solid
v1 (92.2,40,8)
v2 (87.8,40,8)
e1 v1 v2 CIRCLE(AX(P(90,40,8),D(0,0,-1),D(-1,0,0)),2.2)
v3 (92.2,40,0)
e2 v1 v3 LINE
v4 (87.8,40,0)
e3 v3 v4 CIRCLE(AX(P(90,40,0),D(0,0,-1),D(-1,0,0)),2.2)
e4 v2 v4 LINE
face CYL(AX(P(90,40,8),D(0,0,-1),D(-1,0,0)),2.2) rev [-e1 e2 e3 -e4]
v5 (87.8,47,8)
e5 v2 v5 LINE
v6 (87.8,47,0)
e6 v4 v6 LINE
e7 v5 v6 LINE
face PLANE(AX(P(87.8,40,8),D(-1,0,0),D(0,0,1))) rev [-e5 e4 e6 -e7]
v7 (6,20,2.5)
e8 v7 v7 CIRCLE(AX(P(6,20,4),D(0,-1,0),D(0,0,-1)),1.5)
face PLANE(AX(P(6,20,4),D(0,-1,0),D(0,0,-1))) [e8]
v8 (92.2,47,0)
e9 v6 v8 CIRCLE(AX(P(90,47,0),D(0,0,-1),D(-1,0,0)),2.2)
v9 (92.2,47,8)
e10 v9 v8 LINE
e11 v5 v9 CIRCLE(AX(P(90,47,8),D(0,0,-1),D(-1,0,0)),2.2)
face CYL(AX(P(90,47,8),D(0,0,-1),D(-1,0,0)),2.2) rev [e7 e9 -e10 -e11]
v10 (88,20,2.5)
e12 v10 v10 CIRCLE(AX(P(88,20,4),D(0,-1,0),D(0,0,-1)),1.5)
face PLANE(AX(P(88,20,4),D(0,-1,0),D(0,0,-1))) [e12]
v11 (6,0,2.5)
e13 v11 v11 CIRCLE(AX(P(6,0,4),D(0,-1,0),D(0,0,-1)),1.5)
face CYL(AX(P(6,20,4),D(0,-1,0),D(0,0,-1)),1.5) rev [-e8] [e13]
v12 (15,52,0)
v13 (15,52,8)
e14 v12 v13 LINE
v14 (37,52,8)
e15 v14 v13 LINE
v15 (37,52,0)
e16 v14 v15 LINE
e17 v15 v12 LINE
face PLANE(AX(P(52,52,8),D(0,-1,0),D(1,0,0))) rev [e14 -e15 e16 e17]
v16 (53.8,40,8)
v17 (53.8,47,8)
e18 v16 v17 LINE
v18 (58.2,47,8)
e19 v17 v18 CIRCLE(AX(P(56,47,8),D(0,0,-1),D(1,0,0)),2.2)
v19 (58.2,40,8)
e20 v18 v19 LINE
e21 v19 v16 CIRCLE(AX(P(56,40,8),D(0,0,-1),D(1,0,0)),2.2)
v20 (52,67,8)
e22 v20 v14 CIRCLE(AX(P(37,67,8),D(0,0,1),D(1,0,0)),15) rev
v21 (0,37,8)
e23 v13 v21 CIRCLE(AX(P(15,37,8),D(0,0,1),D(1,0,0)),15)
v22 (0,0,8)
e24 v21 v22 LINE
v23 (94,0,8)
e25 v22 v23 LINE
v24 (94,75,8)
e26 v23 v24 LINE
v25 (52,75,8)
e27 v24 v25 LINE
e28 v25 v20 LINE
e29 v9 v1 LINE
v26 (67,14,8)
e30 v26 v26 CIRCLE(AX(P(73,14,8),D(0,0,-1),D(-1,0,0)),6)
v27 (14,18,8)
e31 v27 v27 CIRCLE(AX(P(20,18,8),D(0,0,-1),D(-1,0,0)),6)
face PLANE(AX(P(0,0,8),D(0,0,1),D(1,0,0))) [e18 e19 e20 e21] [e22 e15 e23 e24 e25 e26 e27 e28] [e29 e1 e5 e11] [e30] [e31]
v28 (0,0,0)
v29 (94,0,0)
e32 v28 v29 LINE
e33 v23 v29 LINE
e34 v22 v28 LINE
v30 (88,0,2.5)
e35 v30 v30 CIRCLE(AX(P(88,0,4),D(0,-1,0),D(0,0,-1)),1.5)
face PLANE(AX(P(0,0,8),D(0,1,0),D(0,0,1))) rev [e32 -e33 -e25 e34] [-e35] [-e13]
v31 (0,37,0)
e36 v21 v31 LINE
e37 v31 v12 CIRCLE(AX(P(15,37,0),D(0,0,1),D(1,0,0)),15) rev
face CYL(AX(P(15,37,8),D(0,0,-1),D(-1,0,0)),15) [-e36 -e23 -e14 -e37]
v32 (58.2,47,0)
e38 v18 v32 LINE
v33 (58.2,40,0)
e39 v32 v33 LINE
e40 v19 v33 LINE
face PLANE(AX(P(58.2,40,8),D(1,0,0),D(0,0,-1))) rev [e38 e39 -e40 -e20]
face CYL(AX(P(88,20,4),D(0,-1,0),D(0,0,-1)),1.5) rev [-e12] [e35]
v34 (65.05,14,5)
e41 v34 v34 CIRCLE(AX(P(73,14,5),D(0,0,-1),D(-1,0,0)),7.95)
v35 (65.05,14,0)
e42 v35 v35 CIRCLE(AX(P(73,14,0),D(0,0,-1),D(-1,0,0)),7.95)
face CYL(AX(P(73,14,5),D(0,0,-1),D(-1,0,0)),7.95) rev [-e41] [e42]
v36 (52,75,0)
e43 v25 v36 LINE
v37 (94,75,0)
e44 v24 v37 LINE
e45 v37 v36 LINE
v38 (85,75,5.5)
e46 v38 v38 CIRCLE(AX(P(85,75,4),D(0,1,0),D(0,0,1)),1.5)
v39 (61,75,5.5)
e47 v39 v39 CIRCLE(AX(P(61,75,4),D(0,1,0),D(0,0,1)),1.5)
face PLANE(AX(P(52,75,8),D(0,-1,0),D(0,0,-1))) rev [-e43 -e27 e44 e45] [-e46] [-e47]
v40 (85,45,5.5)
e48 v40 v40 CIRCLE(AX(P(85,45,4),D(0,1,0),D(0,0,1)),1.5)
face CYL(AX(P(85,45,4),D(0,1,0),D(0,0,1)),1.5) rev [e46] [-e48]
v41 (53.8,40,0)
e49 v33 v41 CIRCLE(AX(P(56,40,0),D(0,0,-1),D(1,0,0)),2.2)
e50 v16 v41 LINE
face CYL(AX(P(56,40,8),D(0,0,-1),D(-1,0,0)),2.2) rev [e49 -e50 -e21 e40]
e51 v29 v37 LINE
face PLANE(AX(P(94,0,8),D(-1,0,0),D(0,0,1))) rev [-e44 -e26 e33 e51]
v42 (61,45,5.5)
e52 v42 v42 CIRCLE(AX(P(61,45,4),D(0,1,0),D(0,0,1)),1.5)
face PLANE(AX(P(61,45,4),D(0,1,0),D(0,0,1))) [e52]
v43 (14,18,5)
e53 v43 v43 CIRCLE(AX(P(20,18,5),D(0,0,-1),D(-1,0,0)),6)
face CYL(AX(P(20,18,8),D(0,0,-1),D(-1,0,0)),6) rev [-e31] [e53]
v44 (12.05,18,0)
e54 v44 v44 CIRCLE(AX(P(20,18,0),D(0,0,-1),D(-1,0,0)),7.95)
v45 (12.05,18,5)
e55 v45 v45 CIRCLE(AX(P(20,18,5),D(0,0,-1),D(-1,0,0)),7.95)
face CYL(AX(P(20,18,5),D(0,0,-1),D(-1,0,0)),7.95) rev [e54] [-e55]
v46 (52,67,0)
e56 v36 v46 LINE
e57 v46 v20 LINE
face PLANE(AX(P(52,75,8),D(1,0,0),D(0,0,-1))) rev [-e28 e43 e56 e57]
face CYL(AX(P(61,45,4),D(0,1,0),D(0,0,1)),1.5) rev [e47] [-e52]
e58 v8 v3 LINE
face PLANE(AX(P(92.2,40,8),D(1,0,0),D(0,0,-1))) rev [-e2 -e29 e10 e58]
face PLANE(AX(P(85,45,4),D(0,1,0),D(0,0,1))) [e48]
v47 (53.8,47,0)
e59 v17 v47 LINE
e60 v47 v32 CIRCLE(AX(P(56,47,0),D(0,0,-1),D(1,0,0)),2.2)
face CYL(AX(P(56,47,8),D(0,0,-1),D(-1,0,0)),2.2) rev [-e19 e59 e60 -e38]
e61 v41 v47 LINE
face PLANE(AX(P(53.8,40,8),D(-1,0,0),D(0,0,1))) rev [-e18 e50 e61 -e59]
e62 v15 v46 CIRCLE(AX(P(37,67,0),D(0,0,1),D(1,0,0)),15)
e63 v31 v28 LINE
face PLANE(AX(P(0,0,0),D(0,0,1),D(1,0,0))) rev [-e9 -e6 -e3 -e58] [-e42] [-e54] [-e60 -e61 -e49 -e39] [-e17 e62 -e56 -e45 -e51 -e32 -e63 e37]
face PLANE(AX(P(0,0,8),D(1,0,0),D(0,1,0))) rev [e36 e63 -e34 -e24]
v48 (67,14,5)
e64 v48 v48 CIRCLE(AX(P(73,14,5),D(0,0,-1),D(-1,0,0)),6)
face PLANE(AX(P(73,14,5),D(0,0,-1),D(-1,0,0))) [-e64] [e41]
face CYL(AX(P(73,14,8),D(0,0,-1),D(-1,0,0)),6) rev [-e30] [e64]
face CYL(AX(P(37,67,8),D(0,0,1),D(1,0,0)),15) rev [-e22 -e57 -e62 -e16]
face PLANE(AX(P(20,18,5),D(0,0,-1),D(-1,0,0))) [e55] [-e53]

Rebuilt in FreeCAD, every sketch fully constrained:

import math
import FreeCAD as App
import Part
import Sketcher
Q = App.Units.Quantity


def edges_at(feature, points):
    """Names of the edges that pass closest to the given points."""
    edges = feature.Shape.Edges
    near = lambda p: min(range(len(edges)), key=lambda i: edges[i].distToShape(Part.Vertex(*p))[0])
    return sorted({f"Edge{near(p) + 1}" for p in points})


def add_polygon(sketch, points):
    """Adds a closed chain of lines whose ends are joined by coincident constraints."""
    first, n = sketch.GeometryCount, len(points)
    for a, b in zip(points, points[1:] + points[:1]):
        sketch.addGeometry(Part.LineSegment(App.Vector(*a, 0), App.Vector(*b, 0)), False)
    for i in range(n):
        sketch.addConstraint(Sketcher.Constraint("Coincident", first + i, 2, first + (i + 1) % n, 1))

doc = App.newDocument("Part")
body = doc.addObject("PartDesign::Body", "Body")

# Sketch on XY plane
sketch1 = body.newObject("Sketcher::SketchObject", "Sketch")
sketch1.AttachmentSupport = (doc.getObject("XY_Plane"), [""])
sketch1.MapMode = "FlatFace"
add_polygon(sketch1, [(52, 75), (52, 52), (0, 52), (0, 0), (94, 0), (94, 75)])  # lines 0-5
sketch1.addConstraint(Sketcher.Constraint("Vertical", 0))
sketch1.addConstraint(Sketcher.Constraint("Horizontal", 1))
sketch1.addConstraint(Sketcher.Constraint("Vertical", 2))
sketch1.addConstraint(Sketcher.Constraint("Horizontal", 3))
sketch1.addConstraint(Sketcher.Constraint("Vertical", 4))
sketch1.addConstraint(Sketcher.Constraint("Horizontal", 5))
sketch1.addConstraint(Sketcher.Constraint("Coincident", 2, 2, -1, 1))
sketch1.addConstraint(Sketcher.Constraint("Equal", 1, 2))
sketch1.addConstraint(Sketcher.Constraint("DistanceX", 1, 2, 1, 1, Q("52 mm")))
sketch1.addConstraint(Sketcher.Constraint("DistanceX", 3, 1, 3, 2, Q("94 mm")))
sketch1.addConstraint(Sketcher.Constraint("DistanceY", 0, 2, 0, 1, Q("23 mm")))
pad1 = body.newObject("PartDesign::Pad", "Pad")
pad1.Profile = sketch1
pad1.Length = 8

# Sketch on XY plane
sketch2 = body.newObject("Sketcher::SketchObject", "Sketch001")
sketch2.AttachmentSupport = (doc.getObject("XY_Plane"), [""])
sketch2.MapMode = "FlatFace"
sketch2.addGeometry(Part.Circle(App.Vector(20, 18, 0), App.Vector(0, 0, 1), 7.95), False)
sketch2.addGeometry(Part.Circle(App.Vector(73, 14, 0), App.Vector(0, 0, 1), 7.95), False)
sketch2.addConstraint(Sketcher.Constraint("Equal", 0, 1))
sketch2.addConstraint(Sketcher.Constraint("Diameter", 0, Q("15.9 mm")))
sketch2.addConstraint(Sketcher.Constraint("DistanceX", -1, 1, 0, 3, Q("20 mm")))
sketch2.addConstraint(Sketcher.Constraint("DistanceY", -1, 1, 0, 3, Q("18 mm")))
sketch2.addConstraint(Sketcher.Constraint("DistanceX", -1, 1, 1, 3, Q("73 mm")))
sketch2.addConstraint(Sketcher.Constraint("DistanceY", -1, 1, 1, 3, Q("14 mm")))
pocket1 = body.newObject("PartDesign::Pocket", "Pocket")
pocket1.Profile = sketch2
pocket1.Length = 5
pocket1.Reversed = True

# Sketch on XY plane
sketch3 = body.newObject("Sketcher::SketchObject", "Sketch002")
sketch3.AttachmentSupport = (doc.getObject("XY_Plane"), [""])
sketch3.MapMode = "FlatFace"
sketch3.AttachmentOffset = App.Placement(App.Vector(0, 0, 5), App.Rotation())
sketch3.addGeometry(Part.Circle(App.Vector(73, 14, 0), App.Vector(0, 0, 1), 6), False)
sketch3.addGeometry(Part.Circle(App.Vector(20, 18, 0), App.Vector(0, 0, 1), 6), False)
sketch3.addConstraint(Sketcher.Constraint("Equal", 0, 1))
sketch3.addConstraint(Sketcher.Constraint("Diameter", 0, Q("12 mm")))
sketch3.addConstraint(Sketcher.Constraint("DistanceX", -1, 1, 0, 3, Q("73 mm")))
sketch3.addConstraint(Sketcher.Constraint("DistanceY", -1, 1, 0, 3, Q("14 mm")))
sketch3.addConstraint(Sketcher.Constraint("DistanceX", -1, 1, 1, 3, Q("20 mm")))
sketch3.addConstraint(Sketcher.Constraint("DistanceY", -1, 1, 1, 3, Q("18 mm")))
pocket2 = body.newObject("PartDesign::Pocket", "Pocket001")
pocket2.Profile = sketch3
pocket2.Type = "ThroughAll"
pocket2.Reversed = True

# Sketch on XY plane
sketch4 = body.newObject("Sketcher::SketchObject", "Sketch003")
sketch4.AttachmentSupport = (doc.getObject("XY_Plane"), [""])
sketch4.MapMode = "FlatFace"
sketch4.addGeometry(Part.LineSegment(App.Vector(92.2, 47, 0), App.Vector(92.2, 40, 0)), False)
sketch4.addGeometry(Part.ArcOfCircle(Part.Circle(App.Vector(90, 40, 0), App.Vector(0, 0, 1), 2.2), math.radians(180), math.radians(360)), False)
sketch4.addGeometry(Part.LineSegment(App.Vector(87.8, 40, 0), App.Vector(87.8, 47, 0)), False)
sketch4.addGeometry(Part.ArcOfCircle(Part.Circle(App.Vector(90, 47, 0), App.Vector(0, 0, 1), 2.2), math.radians(0), math.radians(180)), False)
sketch4.addGeometry(Part.LineSegment(App.Vector(53.8, 40, 0), App.Vector(53.8, 47, 0)), False)
sketch4.addGeometry(Part.ArcOfCircle(Part.Circle(App.Vector(56, 47, 0), App.Vector(0, 0, 1), 2.2), math.radians(0), math.radians(180)), False)
sketch4.addGeometry(Part.LineSegment(App.Vector(58.2, 47, 0), App.Vector(58.2, 40, 0)), False)
sketch4.addGeometry(Part.ArcOfCircle(Part.Circle(App.Vector(56, 40, 0), App.Vector(0, 0, 1), 2.2), math.radians(180), math.radians(360)), False)
sketch4.addConstraint(Sketcher.Constraint("Tangent", 0, 2, 1, 2))
sketch4.addConstraint(Sketcher.Constraint("Tangent", 1, 1, 2, 1))
sketch4.addConstraint(Sketcher.Constraint("Tangent", 2, 2, 3, 2))
sketch4.addConstraint(Sketcher.Constraint("Tangent", 3, 1, 0, 1))
sketch4.addConstraint(Sketcher.Constraint("Tangent", 4, 2, 5, 2))
sketch4.addConstraint(Sketcher.Constraint("Tangent", 5, 1, 6, 1))
sketch4.addConstraint(Sketcher.Constraint("Tangent", 6, 2, 7, 2))
sketch4.addConstraint(Sketcher.Constraint("Tangent", 7, 1, 4, 1))
sketch4.addConstraint(Sketcher.Constraint("Vertical", 0))
sketch4.addConstraint(Sketcher.Constraint("Vertical", 2))
sketch4.addConstraint(Sketcher.Constraint("Vertical", 4))
sketch4.addConstraint(Sketcher.Constraint("Vertical", 6))
sketch4.addConstraint(Sketcher.Constraint("Equal", 3, 5))
sketch4.addConstraint(Sketcher.Constraint("Horizontal", 3, 3, 5, 3))
sketch4.addConstraint(Sketcher.Constraint("Horizontal", 1, 3, 7, 3))
sketch4.addConstraint(Sketcher.Constraint("Radius", 1, Q("2.2 mm")))
sketch4.addConstraint(Sketcher.Constraint("DistanceY", 0, 2, 0, 1, Q("7 mm")))
sketch4.addConstraint(Sketcher.Constraint("DistanceX", -1, 1, 1, 3, Q("90 mm")))
sketch4.addConstraint(Sketcher.Constraint("DistanceY", -1, 1, 1, 3, Q("40 mm")))
sketch4.addConstraint(Sketcher.Constraint("DistanceX", -1, 1, 5, 3, Q("56 mm")))
pocket3 = body.newObject("PartDesign::Pocket", "Pocket002")
pocket3.Profile = sketch4
pocket3.Type = "ThroughAll"
pocket3.Reversed = True

# Sketch on XZ plane
sketch5 = body.newObject("Sketcher::SketchObject", "Sketch004")
sketch5.AttachmentSupport = (doc.getObject("XZ_Plane"), [""])
sketch5.MapMode = "FlatFace"
sketch5.AttachmentOffset = App.Placement(App.Vector(0, 0, -75), App.Rotation())
sketch5.addGeometry(Part.Circle(App.Vector(61, 4, 0), App.Vector(0, 0, 1), 1.5), False)
sketch5.addGeometry(Part.Circle(App.Vector(85, 4, 0), App.Vector(0, 0, 1), 1.5), False)
sketch5.addConstraint(Sketcher.Constraint("Equal", 0, 1))
sketch5.addConstraint(Sketcher.Constraint("Horizontal", 0, 3, 1, 3))
sketch5.addConstraint(Sketcher.Constraint("Diameter", 0, Q("3 mm")))
sketch5.addConstraint(Sketcher.Constraint("DistanceX", -1, 1, 0, 3, Q("61 mm")))
sketch5.addConstraint(Sketcher.Constraint("DistanceY", -1, 1, 0, 3, Q("4 mm")))
sketch5.addConstraint(Sketcher.Constraint("DistanceX", -1, 1, 1, 3, Q("85 mm")))
pocket4 = body.newObject("PartDesign::Pocket", "Pocket003")
pocket4.Profile = sketch5
pocket4.Length = 30
pocket4.Reversed = True
doc.recompute()

fillet = body.newObject("PartDesign::Fillet", "Fillet")
fillet.Base = (pocket4, edges_at(pocket4, [(0, 52, 4), (52, 52, 4)]))
fillet.Radius = 15

# Sketch on XZ plane
sketch6 = body.newObject("Sketcher::SketchObject", "Sketch005")
sketch6.AttachmentSupport = (doc.getObject("XZ_Plane"), [""])
sketch6.MapMode = "FlatFace"
sketch6.addGeometry(Part.Circle(App.Vector(6, 4, 0), App.Vector(0, 0, 1), 1.5), False)
sketch6.addGeometry(Part.Circle(App.Vector(88, 4, 0), App.Vector(0, 0, 1), 1.5), False)
sketch6.addConstraint(Sketcher.Constraint("Equal", 0, 1))
sketch6.addConstraint(Sketcher.Constraint("Horizontal", 0, 3, 1, 3))
sketch6.addConstraint(Sketcher.Constraint("Diameter", 0, Q("3 mm")))
sketch6.addConstraint(Sketcher.Constraint("DistanceX", -1, 1, 0, 3, Q("6 mm")))
sketch6.addConstraint(Sketcher.Constraint("DistanceY", -1, 1, 0, 3, Q("4 mm")))
sketch6.addConstraint(Sketcher.Constraint("DistanceX", -1, 1, 1, 3, Q("88 mm")))
pocket5 = body.newObject("PartDesign::Pocket", "Pocket004")
pocket5.Profile = sketch6
pocket5.Length = 20

doc.recompute()
